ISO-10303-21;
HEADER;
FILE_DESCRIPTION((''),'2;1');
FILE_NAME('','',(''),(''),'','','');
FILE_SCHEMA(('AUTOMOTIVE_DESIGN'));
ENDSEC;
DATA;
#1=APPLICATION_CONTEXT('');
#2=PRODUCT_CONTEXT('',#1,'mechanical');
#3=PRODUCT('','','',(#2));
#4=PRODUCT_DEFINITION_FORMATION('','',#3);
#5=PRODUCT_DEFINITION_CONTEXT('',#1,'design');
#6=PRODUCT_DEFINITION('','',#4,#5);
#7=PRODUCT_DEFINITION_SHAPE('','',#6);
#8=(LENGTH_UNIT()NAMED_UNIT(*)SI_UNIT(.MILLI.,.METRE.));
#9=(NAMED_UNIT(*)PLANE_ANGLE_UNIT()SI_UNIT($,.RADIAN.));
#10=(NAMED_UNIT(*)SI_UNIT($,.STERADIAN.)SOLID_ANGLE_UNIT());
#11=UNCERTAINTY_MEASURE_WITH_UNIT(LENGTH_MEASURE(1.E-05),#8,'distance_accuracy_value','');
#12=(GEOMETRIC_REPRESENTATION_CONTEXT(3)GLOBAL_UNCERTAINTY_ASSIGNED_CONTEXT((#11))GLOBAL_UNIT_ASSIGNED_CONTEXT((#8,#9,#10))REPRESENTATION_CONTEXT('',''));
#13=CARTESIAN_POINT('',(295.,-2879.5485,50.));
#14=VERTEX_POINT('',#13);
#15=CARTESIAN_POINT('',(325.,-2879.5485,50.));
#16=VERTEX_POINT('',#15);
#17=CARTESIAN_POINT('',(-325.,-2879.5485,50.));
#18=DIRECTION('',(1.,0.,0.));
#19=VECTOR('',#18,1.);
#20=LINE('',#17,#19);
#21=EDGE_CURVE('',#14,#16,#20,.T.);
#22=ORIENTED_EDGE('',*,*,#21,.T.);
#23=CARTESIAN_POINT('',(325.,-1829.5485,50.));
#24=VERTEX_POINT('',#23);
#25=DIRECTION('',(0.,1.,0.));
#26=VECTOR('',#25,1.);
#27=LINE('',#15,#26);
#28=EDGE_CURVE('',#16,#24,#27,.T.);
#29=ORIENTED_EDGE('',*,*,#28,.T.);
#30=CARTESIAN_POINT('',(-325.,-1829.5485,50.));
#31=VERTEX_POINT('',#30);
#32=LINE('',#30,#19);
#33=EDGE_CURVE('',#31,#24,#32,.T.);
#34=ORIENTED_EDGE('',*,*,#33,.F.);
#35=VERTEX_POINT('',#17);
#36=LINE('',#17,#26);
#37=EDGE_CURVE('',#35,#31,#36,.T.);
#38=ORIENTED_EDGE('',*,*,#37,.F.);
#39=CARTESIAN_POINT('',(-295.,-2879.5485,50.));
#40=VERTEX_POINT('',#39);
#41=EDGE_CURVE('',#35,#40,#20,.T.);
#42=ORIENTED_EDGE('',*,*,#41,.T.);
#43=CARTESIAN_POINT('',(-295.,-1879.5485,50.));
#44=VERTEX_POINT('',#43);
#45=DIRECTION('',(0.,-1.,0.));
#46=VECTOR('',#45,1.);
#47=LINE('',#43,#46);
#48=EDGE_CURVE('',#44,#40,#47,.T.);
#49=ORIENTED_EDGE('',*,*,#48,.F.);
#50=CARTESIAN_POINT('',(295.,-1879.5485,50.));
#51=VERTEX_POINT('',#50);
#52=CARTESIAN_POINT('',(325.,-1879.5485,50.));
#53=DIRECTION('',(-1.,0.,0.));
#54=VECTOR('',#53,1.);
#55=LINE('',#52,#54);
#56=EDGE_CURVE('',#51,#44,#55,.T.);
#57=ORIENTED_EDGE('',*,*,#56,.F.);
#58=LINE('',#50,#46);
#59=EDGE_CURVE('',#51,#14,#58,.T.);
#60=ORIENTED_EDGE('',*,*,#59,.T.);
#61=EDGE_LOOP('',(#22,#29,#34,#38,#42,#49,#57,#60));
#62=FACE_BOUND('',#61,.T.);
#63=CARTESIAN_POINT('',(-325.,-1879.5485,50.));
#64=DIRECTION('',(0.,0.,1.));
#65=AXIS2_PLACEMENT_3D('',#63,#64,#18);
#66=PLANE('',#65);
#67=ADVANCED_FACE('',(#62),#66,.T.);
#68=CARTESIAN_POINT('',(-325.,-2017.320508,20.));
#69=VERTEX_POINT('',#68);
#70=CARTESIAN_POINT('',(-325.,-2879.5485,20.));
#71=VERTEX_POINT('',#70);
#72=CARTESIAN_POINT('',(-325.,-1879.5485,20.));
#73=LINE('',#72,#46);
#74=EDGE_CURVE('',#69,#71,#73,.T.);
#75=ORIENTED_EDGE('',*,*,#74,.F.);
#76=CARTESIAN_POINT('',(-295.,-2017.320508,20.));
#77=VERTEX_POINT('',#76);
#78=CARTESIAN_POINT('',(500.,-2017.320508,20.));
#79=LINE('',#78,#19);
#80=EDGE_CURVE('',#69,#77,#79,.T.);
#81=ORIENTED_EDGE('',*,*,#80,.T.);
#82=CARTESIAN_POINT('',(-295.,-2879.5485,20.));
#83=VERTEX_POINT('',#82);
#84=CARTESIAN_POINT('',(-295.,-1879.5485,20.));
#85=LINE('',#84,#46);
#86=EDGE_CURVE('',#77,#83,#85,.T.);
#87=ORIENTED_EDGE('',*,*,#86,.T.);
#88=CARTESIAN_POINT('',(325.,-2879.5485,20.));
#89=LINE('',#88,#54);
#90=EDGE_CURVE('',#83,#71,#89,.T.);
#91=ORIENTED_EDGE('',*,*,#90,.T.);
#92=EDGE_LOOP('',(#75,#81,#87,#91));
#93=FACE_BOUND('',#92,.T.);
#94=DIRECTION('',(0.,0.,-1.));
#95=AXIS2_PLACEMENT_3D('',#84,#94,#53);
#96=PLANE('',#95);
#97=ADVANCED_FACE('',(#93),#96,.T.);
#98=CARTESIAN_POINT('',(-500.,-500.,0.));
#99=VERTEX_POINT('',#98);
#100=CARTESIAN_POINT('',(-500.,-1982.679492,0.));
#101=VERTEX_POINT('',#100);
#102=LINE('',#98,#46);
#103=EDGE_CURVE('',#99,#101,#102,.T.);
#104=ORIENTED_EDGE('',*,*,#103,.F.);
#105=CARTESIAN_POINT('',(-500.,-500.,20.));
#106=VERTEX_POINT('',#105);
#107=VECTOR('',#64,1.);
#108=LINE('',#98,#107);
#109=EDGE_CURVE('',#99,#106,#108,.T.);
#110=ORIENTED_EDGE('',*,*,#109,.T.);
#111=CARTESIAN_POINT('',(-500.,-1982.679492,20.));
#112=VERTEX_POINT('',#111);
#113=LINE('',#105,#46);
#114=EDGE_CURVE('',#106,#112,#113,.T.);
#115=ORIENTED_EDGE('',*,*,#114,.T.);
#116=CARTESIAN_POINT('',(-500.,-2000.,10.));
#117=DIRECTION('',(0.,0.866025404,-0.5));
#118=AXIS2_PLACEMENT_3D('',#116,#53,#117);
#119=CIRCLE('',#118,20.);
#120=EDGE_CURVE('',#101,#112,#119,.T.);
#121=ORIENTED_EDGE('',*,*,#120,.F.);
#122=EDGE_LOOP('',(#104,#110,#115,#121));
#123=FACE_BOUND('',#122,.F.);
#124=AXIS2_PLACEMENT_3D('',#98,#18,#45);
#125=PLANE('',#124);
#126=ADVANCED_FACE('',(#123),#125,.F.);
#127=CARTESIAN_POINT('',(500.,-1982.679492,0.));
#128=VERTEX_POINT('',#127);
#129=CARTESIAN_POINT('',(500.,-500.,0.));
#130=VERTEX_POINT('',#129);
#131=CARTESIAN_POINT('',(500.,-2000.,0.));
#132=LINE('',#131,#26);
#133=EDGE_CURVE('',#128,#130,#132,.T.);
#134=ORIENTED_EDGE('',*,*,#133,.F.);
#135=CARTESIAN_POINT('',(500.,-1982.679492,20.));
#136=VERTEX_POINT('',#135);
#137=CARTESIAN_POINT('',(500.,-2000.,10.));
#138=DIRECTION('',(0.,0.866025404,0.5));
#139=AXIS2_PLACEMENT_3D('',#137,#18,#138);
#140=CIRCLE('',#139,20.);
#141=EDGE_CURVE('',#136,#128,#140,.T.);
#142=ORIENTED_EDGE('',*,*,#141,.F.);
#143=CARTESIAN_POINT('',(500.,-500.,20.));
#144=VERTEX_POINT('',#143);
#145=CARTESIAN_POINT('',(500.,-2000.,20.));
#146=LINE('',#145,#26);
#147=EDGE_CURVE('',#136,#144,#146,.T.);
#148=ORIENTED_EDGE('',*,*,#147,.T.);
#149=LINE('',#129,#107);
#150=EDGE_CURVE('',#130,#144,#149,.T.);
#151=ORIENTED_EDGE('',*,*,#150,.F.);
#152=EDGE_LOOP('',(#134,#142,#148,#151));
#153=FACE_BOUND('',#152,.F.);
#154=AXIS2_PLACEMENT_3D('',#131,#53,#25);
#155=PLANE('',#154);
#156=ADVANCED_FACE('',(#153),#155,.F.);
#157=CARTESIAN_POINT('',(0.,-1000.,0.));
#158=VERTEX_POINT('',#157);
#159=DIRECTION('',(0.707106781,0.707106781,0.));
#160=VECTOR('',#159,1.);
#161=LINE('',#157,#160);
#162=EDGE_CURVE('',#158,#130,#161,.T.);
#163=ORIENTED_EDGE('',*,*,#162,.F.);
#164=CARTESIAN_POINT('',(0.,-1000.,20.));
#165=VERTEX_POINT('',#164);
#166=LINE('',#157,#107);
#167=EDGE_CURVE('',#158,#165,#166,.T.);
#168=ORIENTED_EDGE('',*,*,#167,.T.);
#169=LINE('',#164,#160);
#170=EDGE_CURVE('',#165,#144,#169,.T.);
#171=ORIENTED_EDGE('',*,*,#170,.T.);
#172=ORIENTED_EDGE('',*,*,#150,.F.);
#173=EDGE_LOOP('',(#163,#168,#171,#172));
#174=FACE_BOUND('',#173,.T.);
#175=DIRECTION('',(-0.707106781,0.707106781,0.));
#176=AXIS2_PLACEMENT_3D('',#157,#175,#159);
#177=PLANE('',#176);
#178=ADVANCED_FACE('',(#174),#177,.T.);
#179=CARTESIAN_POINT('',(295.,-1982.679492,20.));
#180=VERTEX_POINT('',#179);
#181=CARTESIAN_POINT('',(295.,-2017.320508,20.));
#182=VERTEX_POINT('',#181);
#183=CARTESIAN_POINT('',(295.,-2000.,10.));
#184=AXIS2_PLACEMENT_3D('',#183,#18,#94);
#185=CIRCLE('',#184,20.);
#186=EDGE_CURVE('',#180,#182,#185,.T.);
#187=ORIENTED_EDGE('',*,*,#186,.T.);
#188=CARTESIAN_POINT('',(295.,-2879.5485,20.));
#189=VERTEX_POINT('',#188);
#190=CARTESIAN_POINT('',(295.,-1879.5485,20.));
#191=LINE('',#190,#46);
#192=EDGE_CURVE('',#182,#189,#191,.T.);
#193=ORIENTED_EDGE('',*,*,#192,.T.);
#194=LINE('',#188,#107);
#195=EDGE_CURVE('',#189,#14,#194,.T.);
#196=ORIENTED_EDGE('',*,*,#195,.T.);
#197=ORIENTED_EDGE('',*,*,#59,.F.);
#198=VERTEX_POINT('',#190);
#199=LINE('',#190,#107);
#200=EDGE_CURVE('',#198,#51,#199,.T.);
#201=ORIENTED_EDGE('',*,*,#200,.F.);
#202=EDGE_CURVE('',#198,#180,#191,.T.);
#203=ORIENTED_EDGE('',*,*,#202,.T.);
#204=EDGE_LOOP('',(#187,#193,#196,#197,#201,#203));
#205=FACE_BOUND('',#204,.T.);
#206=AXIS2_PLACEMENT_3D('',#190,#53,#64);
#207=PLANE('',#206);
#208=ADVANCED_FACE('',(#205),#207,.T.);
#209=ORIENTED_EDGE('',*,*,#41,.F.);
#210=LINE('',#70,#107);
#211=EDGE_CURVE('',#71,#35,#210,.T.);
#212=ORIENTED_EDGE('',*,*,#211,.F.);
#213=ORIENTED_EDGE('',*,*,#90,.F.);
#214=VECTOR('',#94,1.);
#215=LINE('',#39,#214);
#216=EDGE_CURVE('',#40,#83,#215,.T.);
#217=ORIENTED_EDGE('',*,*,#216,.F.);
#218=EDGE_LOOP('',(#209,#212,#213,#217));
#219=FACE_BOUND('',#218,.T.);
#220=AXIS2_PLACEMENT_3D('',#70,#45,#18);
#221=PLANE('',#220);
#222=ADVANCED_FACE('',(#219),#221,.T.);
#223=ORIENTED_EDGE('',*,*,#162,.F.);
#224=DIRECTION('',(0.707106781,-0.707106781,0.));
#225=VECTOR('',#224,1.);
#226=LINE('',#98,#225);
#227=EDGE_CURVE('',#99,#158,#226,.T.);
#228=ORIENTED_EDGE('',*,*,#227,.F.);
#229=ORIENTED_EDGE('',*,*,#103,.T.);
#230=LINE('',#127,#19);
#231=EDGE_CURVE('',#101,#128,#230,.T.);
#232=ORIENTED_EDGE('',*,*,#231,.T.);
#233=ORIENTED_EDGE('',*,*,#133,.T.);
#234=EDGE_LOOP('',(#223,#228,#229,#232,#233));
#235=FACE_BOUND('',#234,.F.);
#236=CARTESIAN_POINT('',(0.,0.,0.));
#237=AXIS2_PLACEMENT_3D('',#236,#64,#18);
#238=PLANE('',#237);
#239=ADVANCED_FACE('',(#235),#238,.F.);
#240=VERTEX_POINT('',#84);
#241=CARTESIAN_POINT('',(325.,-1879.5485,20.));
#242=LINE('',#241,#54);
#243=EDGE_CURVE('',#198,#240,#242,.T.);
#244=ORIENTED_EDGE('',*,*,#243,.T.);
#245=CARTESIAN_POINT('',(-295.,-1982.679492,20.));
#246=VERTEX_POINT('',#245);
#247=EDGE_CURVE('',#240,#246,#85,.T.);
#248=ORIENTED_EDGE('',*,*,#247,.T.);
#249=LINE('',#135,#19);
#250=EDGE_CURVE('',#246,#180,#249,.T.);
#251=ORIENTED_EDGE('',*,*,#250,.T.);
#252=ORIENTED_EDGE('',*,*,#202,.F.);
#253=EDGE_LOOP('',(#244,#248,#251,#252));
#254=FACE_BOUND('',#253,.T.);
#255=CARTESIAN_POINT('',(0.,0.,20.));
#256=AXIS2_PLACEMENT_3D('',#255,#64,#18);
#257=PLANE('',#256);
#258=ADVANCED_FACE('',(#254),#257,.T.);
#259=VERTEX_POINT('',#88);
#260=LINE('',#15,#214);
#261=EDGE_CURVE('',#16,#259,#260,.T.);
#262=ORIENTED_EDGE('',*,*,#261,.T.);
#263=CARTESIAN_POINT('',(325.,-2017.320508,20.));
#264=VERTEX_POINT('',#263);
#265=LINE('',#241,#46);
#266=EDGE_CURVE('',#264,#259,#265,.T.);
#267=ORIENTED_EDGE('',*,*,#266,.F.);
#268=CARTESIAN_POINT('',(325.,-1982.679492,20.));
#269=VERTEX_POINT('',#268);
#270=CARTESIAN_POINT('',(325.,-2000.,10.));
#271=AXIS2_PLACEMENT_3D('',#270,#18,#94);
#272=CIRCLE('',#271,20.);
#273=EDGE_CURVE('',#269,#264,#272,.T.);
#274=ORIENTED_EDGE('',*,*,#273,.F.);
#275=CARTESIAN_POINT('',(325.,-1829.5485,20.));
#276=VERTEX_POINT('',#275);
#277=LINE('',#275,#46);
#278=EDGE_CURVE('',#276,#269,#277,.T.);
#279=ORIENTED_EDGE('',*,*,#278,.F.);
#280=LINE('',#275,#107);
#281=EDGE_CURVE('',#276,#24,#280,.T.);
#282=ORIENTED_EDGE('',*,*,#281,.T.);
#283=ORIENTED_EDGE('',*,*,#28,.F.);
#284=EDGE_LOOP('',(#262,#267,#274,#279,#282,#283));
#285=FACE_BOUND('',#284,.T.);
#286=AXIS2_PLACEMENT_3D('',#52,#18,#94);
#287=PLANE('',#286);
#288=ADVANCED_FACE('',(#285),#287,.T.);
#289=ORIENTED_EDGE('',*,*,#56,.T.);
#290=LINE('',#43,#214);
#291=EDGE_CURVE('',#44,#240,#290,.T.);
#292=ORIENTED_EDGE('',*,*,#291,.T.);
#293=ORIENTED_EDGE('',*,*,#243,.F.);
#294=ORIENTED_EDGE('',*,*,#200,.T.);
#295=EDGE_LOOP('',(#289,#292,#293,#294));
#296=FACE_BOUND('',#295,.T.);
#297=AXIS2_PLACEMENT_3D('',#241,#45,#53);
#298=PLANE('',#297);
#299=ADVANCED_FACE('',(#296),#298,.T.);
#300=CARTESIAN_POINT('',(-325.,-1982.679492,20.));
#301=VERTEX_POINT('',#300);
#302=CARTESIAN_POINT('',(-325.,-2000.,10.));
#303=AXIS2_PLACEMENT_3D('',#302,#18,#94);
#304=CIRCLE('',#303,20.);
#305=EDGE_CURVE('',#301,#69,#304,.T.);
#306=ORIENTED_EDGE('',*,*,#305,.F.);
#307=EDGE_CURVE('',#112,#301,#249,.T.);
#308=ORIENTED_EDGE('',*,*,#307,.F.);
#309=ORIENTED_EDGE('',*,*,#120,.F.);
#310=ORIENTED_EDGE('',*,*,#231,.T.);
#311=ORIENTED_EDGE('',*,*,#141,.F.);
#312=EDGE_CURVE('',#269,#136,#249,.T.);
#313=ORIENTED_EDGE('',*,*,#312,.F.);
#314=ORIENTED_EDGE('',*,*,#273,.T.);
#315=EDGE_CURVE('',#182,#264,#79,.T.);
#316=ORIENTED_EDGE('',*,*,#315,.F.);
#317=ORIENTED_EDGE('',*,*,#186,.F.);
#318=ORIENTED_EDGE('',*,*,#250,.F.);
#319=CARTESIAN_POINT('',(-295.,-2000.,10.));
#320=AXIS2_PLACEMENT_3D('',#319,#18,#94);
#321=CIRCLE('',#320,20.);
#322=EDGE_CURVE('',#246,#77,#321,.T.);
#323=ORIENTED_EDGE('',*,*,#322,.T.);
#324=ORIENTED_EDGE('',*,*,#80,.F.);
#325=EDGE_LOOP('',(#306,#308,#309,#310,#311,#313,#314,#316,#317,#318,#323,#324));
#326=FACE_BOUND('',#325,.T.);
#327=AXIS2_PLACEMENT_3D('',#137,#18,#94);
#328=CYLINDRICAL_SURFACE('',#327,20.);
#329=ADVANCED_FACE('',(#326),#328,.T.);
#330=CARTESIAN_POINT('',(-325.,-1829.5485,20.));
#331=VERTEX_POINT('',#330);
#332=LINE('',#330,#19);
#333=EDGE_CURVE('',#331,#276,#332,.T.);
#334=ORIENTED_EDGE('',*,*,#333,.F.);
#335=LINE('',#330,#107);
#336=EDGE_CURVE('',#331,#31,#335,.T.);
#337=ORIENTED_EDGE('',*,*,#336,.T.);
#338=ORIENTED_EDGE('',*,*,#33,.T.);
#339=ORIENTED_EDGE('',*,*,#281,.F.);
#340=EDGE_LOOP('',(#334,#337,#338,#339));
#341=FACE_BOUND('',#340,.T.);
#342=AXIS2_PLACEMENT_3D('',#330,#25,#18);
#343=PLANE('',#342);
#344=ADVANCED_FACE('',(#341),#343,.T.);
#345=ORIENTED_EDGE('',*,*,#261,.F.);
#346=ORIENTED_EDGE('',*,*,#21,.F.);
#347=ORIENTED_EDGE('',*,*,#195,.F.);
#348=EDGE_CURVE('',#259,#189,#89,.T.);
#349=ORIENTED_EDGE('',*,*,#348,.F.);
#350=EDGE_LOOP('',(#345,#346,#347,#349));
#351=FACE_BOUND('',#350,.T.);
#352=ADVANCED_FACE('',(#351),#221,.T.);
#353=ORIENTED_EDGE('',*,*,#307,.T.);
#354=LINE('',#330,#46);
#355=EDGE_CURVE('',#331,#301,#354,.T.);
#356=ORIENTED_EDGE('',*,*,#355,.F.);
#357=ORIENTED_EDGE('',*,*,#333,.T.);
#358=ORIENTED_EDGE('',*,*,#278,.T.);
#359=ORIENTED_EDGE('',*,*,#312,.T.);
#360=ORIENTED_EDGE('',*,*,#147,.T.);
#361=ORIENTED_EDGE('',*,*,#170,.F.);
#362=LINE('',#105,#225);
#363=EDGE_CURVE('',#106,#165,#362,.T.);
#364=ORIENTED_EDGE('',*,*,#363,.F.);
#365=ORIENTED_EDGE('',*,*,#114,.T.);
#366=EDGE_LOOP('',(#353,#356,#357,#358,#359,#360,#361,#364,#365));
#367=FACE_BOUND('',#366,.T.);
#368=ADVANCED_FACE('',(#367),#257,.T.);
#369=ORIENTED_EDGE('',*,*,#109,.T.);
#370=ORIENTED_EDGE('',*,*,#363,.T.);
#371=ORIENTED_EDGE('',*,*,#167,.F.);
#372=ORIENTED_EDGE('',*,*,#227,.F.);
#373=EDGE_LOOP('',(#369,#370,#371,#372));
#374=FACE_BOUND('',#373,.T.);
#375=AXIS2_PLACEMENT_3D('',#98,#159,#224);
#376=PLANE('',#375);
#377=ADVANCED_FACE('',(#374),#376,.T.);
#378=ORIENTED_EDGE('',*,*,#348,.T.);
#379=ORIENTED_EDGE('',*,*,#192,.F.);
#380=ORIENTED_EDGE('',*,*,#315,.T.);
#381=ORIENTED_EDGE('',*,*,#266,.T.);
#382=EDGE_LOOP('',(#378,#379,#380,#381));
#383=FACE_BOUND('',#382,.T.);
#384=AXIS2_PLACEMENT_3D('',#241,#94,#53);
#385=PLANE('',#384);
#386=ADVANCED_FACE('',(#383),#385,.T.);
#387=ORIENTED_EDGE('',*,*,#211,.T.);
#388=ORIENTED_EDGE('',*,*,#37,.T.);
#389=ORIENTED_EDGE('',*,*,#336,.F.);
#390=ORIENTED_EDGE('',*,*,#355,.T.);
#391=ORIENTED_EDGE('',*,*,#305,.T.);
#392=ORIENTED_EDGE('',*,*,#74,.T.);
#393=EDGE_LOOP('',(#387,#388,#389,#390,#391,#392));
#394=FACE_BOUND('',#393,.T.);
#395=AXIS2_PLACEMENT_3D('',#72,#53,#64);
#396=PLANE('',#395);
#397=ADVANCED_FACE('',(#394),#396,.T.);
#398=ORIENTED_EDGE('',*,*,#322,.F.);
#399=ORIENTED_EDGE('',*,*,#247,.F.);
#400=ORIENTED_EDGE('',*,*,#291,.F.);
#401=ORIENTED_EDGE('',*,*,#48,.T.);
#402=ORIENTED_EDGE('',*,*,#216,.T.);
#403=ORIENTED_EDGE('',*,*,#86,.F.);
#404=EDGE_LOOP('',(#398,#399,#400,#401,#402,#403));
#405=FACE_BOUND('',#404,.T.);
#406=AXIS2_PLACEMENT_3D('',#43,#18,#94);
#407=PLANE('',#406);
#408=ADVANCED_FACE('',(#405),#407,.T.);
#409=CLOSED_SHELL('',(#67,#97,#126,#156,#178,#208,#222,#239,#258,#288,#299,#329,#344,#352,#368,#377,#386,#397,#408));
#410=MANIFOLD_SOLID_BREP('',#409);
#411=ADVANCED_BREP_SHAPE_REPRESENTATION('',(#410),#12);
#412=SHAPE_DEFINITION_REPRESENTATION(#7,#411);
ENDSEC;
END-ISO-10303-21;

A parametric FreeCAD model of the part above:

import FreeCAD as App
import Part
import Sketcher

V = App.Vector

doc = App.newDocument("Part")
body = doc.addObject("PartDesign::Body", "Body")

sketch1 = body.newObject("Sketcher::SketchObject", "Sketch")
sketch1.AttachmentSupport = (doc.getObject("XY_Plane"), [""])
sketch1.MapMode = "FlatFace"
sketch1.addGeometry([
    Part.LineSegment(V(0, -1000, 0), V(-500, -500, 0)),
    Part.LineSegment(V(-500, -500, 0), V(-500, -2000, 0)),
    Part.LineSegment(V(-500, -2000, 0), V(500, -2000, 0)),
    Part.LineSegment(V(500, -2000, 0), V(500, -500, 0)),
    Part.LineSegment(V(500, -500, 0), V(0, -1000, 0)),
], False)
sketch1.addConstraint([
    Sketcher.Constraint("Coincident", 0, 2, 1, 1),
    Sketcher.Constraint("Coincident", 1, 2, 2, 1),
    Sketcher.Constraint("Coincident", 2, 2, 3, 1),
    Sketcher.Constraint("Coincident", 3, 2, 4, 1),
    Sketcher.Constraint("Coincident", 4, 2, 0, 1),
    Sketcher.Constraint("Vertical", 1),
    Sketcher.Constraint("Horizontal", 2),
    Sketcher.Constraint("Vertical", 3),
    Sketcher.Constraint("Symmetric", 0, 2, 3, 2, -2),
    Sketcher.Constraint("PointOnObject", 4, 2, -2),
    Sketcher.Constraint("Perpendicular", 0, 4),
    Sketcher.Constraint("DistanceX", 2, 1, 2, 2, 1000.0),
    Sketcher.Constraint("DistanceY", 1, 2, 1, 1, 1500.0),
    Sketcher.Constraint("DistanceY", 4, 2, -1, 1, 1000.0),
])
pad1 = body.newObject("PartDesign::Pad", "Pad")
pad1.Profile = sketch1
pad1.Length = 20

sketch2 = body.newObject("Sketcher::SketchObject", "Sketch001")
sketch2.AttachmentSupport = (doc.getObject("YZ_Plane"), [""])
sketch2.MapMode = "FlatFace"
sketch2.AttachmentOffset = App.Placement(V(0, 0, 500), App.Rotation())
sketch2.addGeometry(Part.Circle(V(-2000, 10, 0), V(0, 0, 1), 20), False)
sketch2.addConstraint([
    Sketcher.Constraint("Diameter", 0, 40.0),
    Sketcher.Constraint("DistanceX", 0, 3, -1, 1, 2000.0),
    Sketcher.Constraint("DistanceY", -1, 1, 0, 3, 10.0),
])
pad2 = body.newObject("PartDesign::Pad", "Pad001")
pad2.Profile = sketch2
pad2.Length = 1000
pad2.Reversed = True

sketch3 = body.newObject("Sketcher::SketchObject", "Sketch002")
sketch3.AttachmentSupport = (doc.getObject("XY_Plane"), [""])
sketch3.MapMode = "FlatFace"
sketch3.AttachmentOffset = App.Placement(V(0, 0, 20), App.Rotation())
sketch3.addGeometry([
    Part.LineSegment(V(-325, -1880, 0), V(325, -1880, 0)),
    Part.LineSegment(V(325, -1880, 0), V(325, -1830, 0)),
    Part.LineSegment(V(325, -1830, 0), V(-325, -1830, 0)),
    Part.LineSegment(V(-325, -1830, 0), V(-325, -1880, 0)),
], False)
sketch3.addConstraint([
    Sketcher.Constraint("Coincident", 0, 2, 1, 1),
    Sketcher.Constraint("Coincident", 1, 2, 2, 1),
    Sketcher.Constraint("Coincident", 2, 2, 3, 1),
    Sketcher.Constraint("Coincident", 3, 2, 0, 1),
    Sketcher.Constraint("Horizontal", 0),
    Sketcher.Constraint("Vertical", 1),
    Sketcher.Constraint("Horizontal", 2),
    Sketcher.Constraint("Vertical", 3),
    Sketcher.Constraint("DistanceX", 0, 1, 0, 2, 650.0),
    Sketcher.Constraint("DistanceY", 1, 1, 1, 2, 50.0),
    Sketcher.Constraint("DistanceX", -1, 1, 0, 2, 325.0),
    Sketcher.Constraint("DistanceY", 0, 2, -1, 1, 1879.5485),
])
pad3 = body.newObject("PartDesign::Pad", "Pad002")
pad3.Profile = sketch3
pad3.Length = 30

sketch4 = body.newObject("Sketcher::SketchObject", "Sketch003")
sketch4.AttachmentSupport = (doc.getObject("XZ_Plane"), [""])
sketch4.MapMode = "FlatFace"
sketch4.AttachmentOffset = App.Placement(V(0, 0, 1879.5485), App.Rotation())
sketch4.addGeometry([
    Part.LineSegment(V(295, 20, 0), V(325, 20, 0)),
    Part.LineSegment(V(325, 20, 0), V(325, 50, 0)),
    Part.LineSegment(V(325, 50, 0), V(295, 50, 0)),
    Part.LineSegment(V(295, 50, 0), V(295, 20, 0)),
], False)
sketch4.addConstraint([
    Sketcher.Constraint("Coincident", 0, 2, 1, 1),
    Sketcher.Constraint("Coincident", 1, 2, 2, 1),
    Sketcher.Constraint("Coincident", 2, 2, 3, 1),
    Sketcher.Constraint("Coincident", 3, 2, 0, 1),
    Sketcher.Constraint("Horizontal", 0),
    Sketcher.Constraint("Vertical", 1),
    Sketcher.Constraint("Horizontal", 2),
    Sketcher.Constraint("Vertical", 3),
    Sketcher.Constraint("Equal", 2, 1),
    Sketcher.Constraint("DistanceX", 0, 1, 0, 2, 30.0),
    Sketcher.Constraint("DistanceX", -1, 1, 0, 2, 325.0),
    Sketcher.Constraint("DistanceY", -1, 1, 0, 2, 20.0),
])
pad4 = body.newObject("PartDesign::Pad", "Pad003")
pad4.Profile = sketch4
pad4.Length = 1000

sketch5 = body.newObject("Sketcher::SketchObject", "Sketch004")
sketch5.AttachmentSupport = (doc.getObject("XZ_Plane"), [""])
sketch5.MapMode = "FlatFace"
sketch5.AttachmentOffset = App.Placement(V(0, 0, 1879.5485), App.Rotation())
sketch5.addGeometry([
    Part.LineSegment(V(-325, 20, 0), V(-295, 20, 0)),
    Part.LineSegment(V(-295, 20, 0), V(-295, 50, 0)),
    Part.LineSegment(V(-295, 50, 0), V(-325, 50, 0)),
    Part.LineSegment(V(-325, 50, 0), V(-325, 20, 0)),
], False)
sketch5.addConstraint([
    Sketcher.Constraint("Coincident", 0, 2, 1, 1),
    Sketcher.Constraint("Coincident", 1, 2, 2, 1),
    Sketcher.Constraint("Coincident", 2, 2, 3, 1),
    Sketcher.Constraint("Coincident", 3, 2, 0, 1),
    Sketcher.Constraint("Horizontal", 0),
    Sketcher.Constraint("Vertical", 1),
    Sketcher.Constraint("Horizontal", 2),
    Sketcher.Constraint("Vertical", 3),
    Sketcher.Constraint("Equal", 2, 1),
    Sketcher.Constraint("DistanceX", 0, 1, 0, 2, 30.0),
    Sketcher.Constraint("DistanceX", 0, 2, -1, 1, 295.0),
    Sketcher.Constraint("DistanceY", -1, 1, 0, 2, 20.0),
])
pad5 = body.newObject("PartDesign::Pad", "Pad004")
pad5.Profile = sketch5
pad5.Length = 1000

doc.recompute()
